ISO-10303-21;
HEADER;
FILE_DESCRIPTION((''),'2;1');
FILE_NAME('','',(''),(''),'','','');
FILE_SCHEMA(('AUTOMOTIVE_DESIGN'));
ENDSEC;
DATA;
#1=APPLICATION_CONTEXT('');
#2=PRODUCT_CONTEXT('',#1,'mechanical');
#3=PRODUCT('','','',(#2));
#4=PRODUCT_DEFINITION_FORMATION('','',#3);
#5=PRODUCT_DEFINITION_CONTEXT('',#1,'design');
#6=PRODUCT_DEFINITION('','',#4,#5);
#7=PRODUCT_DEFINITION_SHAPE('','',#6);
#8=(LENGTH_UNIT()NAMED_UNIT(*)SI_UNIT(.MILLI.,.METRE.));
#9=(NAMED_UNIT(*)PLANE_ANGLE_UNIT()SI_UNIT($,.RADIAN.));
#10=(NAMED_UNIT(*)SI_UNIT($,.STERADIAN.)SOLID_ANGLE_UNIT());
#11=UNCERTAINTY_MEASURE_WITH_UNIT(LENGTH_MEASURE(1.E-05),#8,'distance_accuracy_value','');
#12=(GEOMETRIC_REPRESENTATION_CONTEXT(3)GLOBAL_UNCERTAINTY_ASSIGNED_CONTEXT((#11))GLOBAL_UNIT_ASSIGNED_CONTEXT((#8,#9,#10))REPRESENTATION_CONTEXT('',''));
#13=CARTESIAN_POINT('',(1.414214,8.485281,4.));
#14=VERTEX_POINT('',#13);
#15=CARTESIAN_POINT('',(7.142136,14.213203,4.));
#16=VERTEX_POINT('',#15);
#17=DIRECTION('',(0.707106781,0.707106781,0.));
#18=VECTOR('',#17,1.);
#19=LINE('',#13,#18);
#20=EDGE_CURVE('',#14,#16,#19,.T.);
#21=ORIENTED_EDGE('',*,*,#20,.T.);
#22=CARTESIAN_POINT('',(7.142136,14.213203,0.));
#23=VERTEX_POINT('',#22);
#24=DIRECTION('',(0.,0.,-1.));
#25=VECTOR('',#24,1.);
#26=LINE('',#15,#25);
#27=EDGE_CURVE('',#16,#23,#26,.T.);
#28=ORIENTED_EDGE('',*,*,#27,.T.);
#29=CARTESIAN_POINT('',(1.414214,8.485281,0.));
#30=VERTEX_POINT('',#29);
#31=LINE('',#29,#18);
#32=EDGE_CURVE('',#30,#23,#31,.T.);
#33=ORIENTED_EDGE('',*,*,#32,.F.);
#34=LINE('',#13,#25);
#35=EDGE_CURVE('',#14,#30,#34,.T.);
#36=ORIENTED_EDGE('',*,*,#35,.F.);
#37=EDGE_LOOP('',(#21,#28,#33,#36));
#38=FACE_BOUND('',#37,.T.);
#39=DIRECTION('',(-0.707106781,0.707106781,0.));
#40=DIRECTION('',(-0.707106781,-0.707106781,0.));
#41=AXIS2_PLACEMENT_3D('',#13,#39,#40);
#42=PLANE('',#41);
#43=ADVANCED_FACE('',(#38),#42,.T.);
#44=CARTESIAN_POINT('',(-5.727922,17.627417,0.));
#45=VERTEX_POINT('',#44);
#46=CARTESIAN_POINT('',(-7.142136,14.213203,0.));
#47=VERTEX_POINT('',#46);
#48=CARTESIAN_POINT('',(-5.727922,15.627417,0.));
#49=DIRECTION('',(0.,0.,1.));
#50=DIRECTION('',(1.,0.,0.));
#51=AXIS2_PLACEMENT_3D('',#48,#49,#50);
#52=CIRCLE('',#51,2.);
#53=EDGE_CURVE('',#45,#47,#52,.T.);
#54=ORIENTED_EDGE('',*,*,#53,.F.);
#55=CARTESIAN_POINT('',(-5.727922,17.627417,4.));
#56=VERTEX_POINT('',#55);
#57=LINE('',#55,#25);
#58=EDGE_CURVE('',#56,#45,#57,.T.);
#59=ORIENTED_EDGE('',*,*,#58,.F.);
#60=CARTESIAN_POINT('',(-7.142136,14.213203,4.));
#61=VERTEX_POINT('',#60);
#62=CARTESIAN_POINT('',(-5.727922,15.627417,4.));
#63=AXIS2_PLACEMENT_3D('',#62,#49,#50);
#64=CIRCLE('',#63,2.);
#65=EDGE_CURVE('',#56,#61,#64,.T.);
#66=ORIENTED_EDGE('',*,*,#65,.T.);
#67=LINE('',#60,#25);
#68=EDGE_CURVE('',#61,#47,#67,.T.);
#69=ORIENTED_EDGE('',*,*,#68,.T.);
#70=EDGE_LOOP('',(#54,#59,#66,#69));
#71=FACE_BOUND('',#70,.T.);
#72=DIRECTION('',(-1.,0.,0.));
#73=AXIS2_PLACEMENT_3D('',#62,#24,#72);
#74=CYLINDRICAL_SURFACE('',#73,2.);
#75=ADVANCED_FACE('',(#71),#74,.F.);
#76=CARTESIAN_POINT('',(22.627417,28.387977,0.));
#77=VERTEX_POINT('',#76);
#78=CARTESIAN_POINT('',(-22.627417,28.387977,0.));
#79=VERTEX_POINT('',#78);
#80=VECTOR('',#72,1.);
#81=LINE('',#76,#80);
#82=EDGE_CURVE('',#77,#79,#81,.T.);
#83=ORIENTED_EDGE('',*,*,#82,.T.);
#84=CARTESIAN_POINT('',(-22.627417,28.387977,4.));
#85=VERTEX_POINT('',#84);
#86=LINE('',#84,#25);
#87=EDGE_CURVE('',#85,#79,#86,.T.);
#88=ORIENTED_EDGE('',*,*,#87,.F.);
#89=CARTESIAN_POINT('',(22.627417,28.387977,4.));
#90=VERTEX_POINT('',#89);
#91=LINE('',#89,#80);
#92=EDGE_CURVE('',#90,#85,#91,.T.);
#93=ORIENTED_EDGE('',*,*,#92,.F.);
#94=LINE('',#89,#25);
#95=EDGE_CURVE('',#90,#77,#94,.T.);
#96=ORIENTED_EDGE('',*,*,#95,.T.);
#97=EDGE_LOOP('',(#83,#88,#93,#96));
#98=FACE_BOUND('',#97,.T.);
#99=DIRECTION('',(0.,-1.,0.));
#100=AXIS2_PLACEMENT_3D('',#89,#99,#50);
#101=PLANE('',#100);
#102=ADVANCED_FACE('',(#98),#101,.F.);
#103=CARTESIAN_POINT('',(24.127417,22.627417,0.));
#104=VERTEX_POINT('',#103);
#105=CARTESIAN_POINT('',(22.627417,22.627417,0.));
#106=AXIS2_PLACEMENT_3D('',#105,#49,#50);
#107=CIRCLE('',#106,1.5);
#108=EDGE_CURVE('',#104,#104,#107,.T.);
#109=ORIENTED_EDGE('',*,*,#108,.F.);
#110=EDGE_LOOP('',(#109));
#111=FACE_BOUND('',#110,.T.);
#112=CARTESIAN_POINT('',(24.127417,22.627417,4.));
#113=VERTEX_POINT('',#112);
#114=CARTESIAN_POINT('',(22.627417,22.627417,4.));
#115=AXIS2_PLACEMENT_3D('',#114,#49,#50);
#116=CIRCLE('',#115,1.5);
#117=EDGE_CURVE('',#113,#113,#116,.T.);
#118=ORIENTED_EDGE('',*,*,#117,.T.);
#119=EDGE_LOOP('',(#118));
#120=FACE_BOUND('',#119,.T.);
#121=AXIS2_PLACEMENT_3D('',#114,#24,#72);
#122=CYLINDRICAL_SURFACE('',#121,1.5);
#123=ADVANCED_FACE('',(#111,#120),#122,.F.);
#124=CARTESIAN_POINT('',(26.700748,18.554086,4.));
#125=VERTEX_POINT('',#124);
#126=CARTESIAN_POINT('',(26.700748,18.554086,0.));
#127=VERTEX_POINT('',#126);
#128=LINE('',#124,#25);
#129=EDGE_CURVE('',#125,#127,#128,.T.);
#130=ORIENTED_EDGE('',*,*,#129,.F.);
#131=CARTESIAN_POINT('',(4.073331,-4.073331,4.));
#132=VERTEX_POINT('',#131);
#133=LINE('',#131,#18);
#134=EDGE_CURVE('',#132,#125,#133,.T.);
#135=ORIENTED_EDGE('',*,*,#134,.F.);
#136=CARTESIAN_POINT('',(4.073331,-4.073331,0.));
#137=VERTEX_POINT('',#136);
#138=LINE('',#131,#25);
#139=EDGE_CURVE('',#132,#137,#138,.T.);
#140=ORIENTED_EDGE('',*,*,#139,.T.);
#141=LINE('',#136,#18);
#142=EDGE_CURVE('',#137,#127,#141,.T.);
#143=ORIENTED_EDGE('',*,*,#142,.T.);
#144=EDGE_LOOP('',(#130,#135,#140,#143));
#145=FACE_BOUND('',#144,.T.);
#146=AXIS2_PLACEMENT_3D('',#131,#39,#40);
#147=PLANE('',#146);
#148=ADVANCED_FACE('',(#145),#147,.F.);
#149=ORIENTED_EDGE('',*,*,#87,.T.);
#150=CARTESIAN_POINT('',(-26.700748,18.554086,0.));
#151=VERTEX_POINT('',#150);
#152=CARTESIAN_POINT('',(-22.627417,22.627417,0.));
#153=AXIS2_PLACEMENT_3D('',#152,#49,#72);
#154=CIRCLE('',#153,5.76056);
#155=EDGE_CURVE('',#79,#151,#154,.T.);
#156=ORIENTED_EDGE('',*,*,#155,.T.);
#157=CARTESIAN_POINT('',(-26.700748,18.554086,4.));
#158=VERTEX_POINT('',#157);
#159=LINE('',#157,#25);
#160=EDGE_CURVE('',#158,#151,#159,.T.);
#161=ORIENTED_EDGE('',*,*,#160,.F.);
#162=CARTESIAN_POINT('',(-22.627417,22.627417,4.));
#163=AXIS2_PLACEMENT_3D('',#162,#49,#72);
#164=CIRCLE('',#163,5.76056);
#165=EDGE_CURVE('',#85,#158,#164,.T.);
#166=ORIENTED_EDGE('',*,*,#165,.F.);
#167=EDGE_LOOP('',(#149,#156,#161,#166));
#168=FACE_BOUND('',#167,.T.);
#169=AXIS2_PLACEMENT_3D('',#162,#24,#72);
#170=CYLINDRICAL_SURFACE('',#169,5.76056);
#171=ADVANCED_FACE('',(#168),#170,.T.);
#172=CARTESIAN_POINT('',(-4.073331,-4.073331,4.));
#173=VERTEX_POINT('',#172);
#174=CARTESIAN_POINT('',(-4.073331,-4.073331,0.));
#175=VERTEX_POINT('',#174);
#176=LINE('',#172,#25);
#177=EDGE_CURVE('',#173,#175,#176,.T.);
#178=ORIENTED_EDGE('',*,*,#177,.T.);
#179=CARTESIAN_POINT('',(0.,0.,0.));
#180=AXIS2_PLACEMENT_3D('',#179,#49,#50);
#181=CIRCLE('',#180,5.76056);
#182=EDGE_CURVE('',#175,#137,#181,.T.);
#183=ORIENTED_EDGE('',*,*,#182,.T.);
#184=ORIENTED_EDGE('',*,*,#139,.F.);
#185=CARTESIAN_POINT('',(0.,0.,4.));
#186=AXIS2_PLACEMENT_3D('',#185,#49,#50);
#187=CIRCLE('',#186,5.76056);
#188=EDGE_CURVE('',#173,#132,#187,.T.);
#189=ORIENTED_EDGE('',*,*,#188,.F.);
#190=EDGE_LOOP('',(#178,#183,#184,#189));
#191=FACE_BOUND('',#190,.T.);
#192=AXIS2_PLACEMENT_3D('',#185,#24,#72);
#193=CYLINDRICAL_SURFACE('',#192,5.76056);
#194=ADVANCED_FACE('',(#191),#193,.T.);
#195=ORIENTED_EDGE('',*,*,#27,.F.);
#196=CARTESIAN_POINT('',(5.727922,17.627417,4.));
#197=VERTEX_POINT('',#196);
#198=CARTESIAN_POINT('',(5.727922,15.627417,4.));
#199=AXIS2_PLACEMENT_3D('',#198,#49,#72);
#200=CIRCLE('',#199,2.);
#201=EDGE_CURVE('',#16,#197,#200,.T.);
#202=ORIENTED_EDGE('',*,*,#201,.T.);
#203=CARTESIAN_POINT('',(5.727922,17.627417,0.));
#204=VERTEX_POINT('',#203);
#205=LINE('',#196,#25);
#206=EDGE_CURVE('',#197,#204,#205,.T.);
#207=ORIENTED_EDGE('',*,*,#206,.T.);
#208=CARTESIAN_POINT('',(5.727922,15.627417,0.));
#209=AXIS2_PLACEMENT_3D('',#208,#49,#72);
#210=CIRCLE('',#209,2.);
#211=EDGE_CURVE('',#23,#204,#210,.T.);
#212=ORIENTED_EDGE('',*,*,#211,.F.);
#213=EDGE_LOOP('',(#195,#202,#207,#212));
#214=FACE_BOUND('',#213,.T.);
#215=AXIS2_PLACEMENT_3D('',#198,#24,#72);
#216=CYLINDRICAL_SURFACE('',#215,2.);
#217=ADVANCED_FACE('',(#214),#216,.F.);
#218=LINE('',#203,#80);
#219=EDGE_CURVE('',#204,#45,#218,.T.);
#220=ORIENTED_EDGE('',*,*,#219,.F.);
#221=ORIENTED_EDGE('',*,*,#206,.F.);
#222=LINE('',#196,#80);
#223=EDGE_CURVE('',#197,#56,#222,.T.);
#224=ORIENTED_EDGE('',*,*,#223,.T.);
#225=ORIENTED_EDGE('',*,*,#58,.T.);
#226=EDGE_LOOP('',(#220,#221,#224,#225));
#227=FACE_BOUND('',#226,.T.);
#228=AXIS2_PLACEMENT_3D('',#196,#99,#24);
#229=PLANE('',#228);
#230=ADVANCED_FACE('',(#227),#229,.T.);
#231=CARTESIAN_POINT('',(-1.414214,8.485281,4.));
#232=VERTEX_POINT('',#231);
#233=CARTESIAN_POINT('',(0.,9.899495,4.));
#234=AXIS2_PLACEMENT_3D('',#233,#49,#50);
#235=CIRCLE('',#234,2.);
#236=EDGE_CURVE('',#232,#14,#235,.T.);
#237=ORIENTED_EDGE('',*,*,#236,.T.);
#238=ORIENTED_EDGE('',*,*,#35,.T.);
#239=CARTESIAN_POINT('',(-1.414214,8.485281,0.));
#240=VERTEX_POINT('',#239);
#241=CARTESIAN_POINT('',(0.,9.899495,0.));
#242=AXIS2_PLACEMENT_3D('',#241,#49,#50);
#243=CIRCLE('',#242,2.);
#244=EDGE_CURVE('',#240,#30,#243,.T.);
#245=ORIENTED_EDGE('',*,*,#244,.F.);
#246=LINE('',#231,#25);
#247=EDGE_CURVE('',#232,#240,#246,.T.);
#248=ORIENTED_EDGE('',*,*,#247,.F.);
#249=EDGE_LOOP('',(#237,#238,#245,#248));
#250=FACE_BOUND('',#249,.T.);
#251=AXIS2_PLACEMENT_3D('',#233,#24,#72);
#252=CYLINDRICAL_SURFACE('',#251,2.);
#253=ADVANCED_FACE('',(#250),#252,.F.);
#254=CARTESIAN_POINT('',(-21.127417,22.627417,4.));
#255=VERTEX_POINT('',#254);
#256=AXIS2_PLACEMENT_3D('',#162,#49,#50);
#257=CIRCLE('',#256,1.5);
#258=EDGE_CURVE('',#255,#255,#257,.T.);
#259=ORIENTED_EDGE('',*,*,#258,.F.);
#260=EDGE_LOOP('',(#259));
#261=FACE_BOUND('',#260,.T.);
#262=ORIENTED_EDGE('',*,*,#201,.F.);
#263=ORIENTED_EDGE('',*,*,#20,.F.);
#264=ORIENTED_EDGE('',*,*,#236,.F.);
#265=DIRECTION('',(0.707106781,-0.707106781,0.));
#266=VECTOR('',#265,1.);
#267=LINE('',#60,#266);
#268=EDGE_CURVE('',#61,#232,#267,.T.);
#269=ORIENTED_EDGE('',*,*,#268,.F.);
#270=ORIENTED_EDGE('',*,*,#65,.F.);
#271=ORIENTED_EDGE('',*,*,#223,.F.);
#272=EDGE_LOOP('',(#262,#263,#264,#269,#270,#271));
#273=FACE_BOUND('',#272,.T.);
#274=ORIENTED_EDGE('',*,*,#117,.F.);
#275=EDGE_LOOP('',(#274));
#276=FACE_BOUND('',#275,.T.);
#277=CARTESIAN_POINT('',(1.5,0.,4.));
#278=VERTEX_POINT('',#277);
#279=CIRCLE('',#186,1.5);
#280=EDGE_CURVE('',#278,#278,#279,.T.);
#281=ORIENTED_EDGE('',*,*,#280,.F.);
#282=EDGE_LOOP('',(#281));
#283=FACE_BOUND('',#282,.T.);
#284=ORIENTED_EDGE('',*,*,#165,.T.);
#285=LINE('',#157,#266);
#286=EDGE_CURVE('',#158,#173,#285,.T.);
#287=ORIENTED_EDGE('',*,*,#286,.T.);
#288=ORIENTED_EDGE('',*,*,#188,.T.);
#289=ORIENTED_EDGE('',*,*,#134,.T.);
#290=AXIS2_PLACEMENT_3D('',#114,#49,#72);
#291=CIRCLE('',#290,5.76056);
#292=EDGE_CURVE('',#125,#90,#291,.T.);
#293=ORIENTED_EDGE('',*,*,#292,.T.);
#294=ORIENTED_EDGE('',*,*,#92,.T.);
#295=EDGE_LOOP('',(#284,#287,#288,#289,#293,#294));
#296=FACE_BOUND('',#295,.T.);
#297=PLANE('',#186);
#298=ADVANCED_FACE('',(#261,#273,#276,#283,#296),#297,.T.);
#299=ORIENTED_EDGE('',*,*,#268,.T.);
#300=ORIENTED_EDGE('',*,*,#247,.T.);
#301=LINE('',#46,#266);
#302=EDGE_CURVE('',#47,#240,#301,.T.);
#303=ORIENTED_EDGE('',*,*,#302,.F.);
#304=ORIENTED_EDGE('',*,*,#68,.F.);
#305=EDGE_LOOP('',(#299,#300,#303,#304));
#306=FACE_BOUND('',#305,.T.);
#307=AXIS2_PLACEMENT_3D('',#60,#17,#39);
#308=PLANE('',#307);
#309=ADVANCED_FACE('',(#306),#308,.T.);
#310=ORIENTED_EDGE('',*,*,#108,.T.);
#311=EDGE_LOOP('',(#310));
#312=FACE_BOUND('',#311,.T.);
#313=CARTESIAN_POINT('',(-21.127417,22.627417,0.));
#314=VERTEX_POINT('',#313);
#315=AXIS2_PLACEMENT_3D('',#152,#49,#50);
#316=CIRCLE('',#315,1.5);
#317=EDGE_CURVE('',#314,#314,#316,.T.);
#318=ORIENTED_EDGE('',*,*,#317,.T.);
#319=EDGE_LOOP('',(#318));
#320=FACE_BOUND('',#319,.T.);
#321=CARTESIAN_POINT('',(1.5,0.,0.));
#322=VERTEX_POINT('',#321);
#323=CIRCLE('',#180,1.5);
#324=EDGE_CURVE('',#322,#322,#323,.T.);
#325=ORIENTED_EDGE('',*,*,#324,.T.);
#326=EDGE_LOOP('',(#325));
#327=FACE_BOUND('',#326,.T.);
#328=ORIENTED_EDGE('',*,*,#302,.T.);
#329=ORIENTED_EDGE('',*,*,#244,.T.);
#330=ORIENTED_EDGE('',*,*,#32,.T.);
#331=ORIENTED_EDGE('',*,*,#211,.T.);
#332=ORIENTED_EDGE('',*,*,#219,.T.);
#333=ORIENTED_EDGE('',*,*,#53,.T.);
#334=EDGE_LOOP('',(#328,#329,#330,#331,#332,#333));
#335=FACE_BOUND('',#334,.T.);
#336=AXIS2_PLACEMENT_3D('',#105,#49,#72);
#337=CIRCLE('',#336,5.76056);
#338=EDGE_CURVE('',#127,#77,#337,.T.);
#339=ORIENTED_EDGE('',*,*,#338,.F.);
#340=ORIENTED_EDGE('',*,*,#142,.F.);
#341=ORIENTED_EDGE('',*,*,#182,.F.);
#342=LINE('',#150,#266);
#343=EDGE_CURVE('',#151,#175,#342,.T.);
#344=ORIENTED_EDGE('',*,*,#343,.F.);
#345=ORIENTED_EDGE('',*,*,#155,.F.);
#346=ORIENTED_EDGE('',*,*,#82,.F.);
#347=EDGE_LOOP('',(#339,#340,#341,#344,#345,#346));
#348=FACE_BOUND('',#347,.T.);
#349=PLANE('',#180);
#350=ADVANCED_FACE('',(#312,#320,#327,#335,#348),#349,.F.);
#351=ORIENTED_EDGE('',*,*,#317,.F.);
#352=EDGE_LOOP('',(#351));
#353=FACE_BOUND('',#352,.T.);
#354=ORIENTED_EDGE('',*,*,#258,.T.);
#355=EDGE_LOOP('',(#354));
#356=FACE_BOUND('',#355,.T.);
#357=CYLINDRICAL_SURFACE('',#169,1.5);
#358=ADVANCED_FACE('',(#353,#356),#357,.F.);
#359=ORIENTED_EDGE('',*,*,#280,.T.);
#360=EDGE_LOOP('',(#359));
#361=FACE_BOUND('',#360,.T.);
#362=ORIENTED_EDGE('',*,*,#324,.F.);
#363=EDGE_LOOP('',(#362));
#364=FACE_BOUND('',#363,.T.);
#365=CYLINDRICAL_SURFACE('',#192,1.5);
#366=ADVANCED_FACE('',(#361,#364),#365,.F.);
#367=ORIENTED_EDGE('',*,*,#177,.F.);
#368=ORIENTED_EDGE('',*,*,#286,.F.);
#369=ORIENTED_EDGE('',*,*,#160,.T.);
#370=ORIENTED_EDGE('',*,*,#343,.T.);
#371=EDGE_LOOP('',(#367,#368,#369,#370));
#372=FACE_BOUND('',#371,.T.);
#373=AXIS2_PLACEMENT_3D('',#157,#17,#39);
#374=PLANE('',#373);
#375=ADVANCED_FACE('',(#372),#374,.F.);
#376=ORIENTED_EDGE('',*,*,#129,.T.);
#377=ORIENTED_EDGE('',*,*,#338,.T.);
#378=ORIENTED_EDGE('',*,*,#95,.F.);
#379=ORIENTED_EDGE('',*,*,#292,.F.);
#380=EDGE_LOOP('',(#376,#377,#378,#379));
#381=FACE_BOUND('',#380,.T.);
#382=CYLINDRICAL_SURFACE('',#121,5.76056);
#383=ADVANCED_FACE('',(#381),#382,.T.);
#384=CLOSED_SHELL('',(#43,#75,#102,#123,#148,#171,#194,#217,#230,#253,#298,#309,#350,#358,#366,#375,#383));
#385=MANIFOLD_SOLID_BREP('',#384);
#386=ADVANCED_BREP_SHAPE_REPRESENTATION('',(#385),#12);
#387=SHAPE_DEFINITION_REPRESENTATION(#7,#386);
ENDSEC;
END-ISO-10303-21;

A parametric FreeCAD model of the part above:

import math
import FreeCAD as App
import Part
import Sketcher

V = App.Vector

doc = App.newDocument("Part")
body = doc.addObject("PartDesign::Body", "Body")

# Sketch on XY plane
sketch1 = body.newObject("Sketcher::SketchObject", "Sketch")
sketch1.AttachmentSupport = (doc.getObject("XY_Plane"), [""])
sketch1.MapMode = "FlatFace"
sketch1.addGeometry(Part.LineSegment(V(22.627417, 28.387977, 0), V(-22.627417, 28.387977, 0)), False)
sketch1.addGeometry(Part.ArcOfCircle(Part.Circle(V(-22.627417, 22.627417, 0), V(0, 0, 1), 5.76056), math.radians(90), math.radians(225)), False)
sketch1.addGeometry(Part.LineSegment(V(-26.700748, 18.554086, 0), V(-4.073331, -4.073331, 0)), False)
sketch1.addGeometry(Part.ArcOfCircle(Part.Circle(V(0, 0, 0), V(0, 0, 1), 5.76056), math.radians(-135), math.radians(-45)), False)
sketch1.addGeometry(Part.LineSegment(V(4.073331, -4.073331, 0), V(26.700748, 18.554086, 0)), False)
sketch1.addGeometry(Part.ArcOfCircle(Part.Circle(V(22.627417, 22.627417, 0), V(0, 0, 1), 5.76056), math.radians(-45), math.radians(90)), False)
sketch1.addGeometry(Part.Circle(V(0, 0, 0), V(0, 0, 1), 1.5), False)
sketch1.addGeometry(Part.Circle(V(-22.627417, 22.627417, 0), V(0, 0, 1), 1.5), False)
sketch1.addGeometry(Part.LineSegment(V(-5.727922, 17.627417, 0), V(5.727922, 17.627417, 0)), False)
sketch1.addGeometry(Part.ArcOfCircle(Part.Circle(V(5.727922, 15.627417, 0), V(0, 0, 1), 2), math.radians(-45), math.radians(90)), False)
sketch1.addGeometry(Part.LineSegment(V(7.142136, 14.213203, 0), V(1.414214, 8.485281, 0)), False)
sketch1.addGeometry(Part.ArcOfCircle(Part.Circle(V(0, 9.899495, 0), V(0, 0, 1), 2), math.radians(-135), math.radians(-45)), False)
sketch1.addGeometry(Part.LineSegment(V(-1.414214, 8.485281, 0), V(-7.142136, 14.213203, 0)), False)
sketch1.addGeometry(Part.ArcOfCircle(Part.Circle(V(-5.727922, 15.627417, 0), V(0, 0, 1), 2), math.radians(90), math.radians(225)), False)
sketch1.addGeometry(Part.Circle(V(22.627417, 22.627417, 0), V(0, 0, 1), 1.5), False)
sketch1.addConstraint(Sketcher.Constraint("Tangent", 0, 2, 1, 1))
sketch1.addConstraint(Sketcher.Constraint("Tangent", 1, 2, 2, 1))
sketch1.addConstraint(Sketcher.Constraint("Tangent", 2, 2, 3, 1))
sketch1.addConstraint(Sketcher.Constraint("Tangent", 3, 2, 4, 1))
sketch1.addConstraint(Sketcher.Constraint("Tangent", 4, 2, 5, 1))
sketch1.addConstraint(Sketcher.Constraint("Tangent", 5, 2, 0, 1))
sketch1.addConstraint(Sketcher.Constraint("Tangent", 8, 2, 9, 2))
sketch1.addConstraint(Sketcher.Constraint("Tangent", 9, 1, 10, 1))
sketch1.addConstraint(Sketcher.Constraint("Tangent", 10, 2, 11, 2))
sketch1.addConstraint(Sketcher.Constraint("Tangent", 11, 1, 12, 1))
sketch1.addConstraint(Sketcher.Constraint("Tangent", 12, 2, 13, 2))
sketch1.addConstraint(Sketcher.Constraint("Tangent", 13, 1, 8, 1))
sketch1.addConstraint(Sketcher.Constraint("Horizontal", 0))
sketch1.addConstraint(Sketcher.Constraint("Horizontal", 8))
sketch1.addConstraint(Sketcher.Constraint("Coincident", 3, 3, -1, 1))
sketch1.addConstraint(Sketcher.Constraint("Coincident", 6, 3, -1, 1))
sketch1.addConstraint(Sketcher.Constraint("Coincident", 7, 3, 1, 3))
sketch1.addConstraint(Sketcher.Constraint("Coincident", 14, 3, 5, 3))
sketch1.addConstraint(Sketcher.Constraint("Equal", 1, 3))
sketch1.addConstraint(Sketcher.Constraint("Equal", 3, 5))
sketch1.addConstraint(Sketcher.Constraint("Equal", 6, 7))
sketch1.addConstraint(Sketcher.Constraint("Equal", 9, 11))
sketch1.addConstraint(Sketcher.Constraint("Equal", 11, 13))
sketch1.addConstraint(Sketcher.Constraint("Equal", 7, 14))
sketch1.addConstraint(Sketcher.Constraint("Symmetric", 10, 2, 11, 1, -2))
sketch1.addConstraint(Sketcher.Constraint("Perpendicular", 2, 4))
sketch1.addConstraint(Sketcher.Constraint("Parallel", 4, 10))
sketch1.addConstraint(Sketcher.Constraint("Perpendicular", 10, 12))
sketch1.addConstraint(Sketcher.Constraint("Diameter", 6, 3.0))
sketch1.addConstraint(Sketcher.Constraint("Radius", 9, 2.0))
sketch1.addConstraint(Sketcher.Constraint("Distance", 2, 32.0))
sketch1.addConstraint(Sketcher.Constraint("DistanceY", 9, 3, 5, 3, 7.0))
sketch1.addConstraint(Sketcher.Constraint("Radius", 1, 5.76056))
sketch1.addConstraint(Sketcher.Constraint("DistanceX", 8, 1, 8, 2, 11.455844))
pad1 = body.newObject("PartDesign::Pad", "Pad")
pad1.Profile = sketch1
pad1.Length = 4

doc.recompute()
